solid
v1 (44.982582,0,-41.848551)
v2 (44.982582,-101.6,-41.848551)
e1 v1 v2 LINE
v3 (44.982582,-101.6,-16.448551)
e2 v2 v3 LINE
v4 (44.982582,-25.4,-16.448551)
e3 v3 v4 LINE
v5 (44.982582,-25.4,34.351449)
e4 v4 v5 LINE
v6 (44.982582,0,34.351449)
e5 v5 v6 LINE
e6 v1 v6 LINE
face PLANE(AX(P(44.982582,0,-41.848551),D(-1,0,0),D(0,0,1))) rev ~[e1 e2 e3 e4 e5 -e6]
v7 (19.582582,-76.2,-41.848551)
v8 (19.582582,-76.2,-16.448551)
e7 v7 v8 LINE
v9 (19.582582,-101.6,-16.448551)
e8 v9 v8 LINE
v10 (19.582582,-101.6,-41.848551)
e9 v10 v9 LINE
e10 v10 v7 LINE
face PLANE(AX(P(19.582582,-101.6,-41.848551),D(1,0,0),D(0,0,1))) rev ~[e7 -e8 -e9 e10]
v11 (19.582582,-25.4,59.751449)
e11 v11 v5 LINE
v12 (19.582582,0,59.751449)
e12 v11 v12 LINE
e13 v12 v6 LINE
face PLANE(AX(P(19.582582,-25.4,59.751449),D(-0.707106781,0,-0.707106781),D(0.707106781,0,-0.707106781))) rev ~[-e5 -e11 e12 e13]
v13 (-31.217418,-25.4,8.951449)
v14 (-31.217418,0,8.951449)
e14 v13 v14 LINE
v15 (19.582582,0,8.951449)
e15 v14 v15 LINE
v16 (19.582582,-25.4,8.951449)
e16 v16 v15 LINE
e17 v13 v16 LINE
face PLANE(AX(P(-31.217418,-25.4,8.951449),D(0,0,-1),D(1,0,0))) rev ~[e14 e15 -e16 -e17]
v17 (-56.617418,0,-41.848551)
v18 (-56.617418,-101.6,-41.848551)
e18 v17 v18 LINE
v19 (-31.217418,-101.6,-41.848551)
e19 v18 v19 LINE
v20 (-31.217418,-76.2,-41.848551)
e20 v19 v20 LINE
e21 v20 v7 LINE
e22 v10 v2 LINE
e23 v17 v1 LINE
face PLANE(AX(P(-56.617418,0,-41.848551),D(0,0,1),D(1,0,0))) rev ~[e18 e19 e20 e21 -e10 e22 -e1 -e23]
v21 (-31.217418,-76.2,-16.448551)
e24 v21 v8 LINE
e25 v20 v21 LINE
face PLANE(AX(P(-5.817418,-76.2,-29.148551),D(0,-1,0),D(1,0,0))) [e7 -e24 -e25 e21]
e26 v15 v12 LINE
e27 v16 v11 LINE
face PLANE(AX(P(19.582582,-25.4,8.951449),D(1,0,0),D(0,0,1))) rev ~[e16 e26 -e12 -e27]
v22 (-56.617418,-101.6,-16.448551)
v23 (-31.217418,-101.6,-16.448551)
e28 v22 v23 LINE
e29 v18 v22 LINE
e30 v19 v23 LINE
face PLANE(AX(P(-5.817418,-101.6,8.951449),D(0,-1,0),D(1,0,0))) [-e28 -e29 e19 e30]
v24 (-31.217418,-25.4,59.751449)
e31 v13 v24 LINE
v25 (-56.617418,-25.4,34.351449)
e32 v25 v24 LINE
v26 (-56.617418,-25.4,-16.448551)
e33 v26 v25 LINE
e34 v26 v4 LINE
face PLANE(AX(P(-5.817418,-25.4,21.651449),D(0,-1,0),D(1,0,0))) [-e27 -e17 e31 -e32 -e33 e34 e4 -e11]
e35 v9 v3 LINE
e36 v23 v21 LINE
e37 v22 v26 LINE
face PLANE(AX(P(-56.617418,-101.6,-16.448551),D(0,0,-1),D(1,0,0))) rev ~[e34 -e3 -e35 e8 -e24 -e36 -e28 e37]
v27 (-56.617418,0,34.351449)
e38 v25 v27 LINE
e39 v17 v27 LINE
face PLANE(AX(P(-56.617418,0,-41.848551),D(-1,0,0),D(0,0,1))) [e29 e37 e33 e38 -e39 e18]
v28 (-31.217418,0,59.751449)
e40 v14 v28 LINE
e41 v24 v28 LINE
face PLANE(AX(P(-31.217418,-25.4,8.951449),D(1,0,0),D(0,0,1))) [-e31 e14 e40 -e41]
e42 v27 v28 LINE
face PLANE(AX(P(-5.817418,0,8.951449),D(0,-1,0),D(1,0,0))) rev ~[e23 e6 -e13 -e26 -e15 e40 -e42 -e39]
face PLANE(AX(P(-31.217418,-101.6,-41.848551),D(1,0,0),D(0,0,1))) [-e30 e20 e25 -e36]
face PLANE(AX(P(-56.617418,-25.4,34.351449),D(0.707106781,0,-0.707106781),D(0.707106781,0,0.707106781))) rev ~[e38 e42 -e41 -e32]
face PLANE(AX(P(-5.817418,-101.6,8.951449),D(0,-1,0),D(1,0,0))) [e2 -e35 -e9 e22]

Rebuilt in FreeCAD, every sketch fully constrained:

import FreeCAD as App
import Part
import Sketcher
Q = App.Units.Quantity


def add_polygon(sketch, points):
    """Adds a closed chain of lines whose ends are joined by coincident constraints."""
    first, n = sketch.GeometryCount, len(points)
    for a, b in zip(points, points[1:] + points[:1]):
        sketch.addGeometry(Part.LineSegment(App.Vector(*a, 0), App.Vector(*b, 0)), False)
    for i in range(n):
        sketch.addConstraint(Sketcher.Constraint("Coincident", first + i, 2, first + (i + 1) % n, 1))

doc = App.newDocument("Part")
body = doc.addObject("PartDesign::Body", "Body")

# Sketch on XZ plane
sketch1 = doc.addObject("Sketcher::SketchObject", "Sketch")
body.addObject(sketch1)
sketch1.AttachmentSupport = (doc.XZ_Plane, [""])
sketch1.MapMode = "FlatFace"
add_polygon(sketch1, [(-56.617418, 59.751449), (-56.617418, -41.848551), (44.982582, -41.848551), (44.982582, 59.751449)])  # lines 0-3
sketch1.addConstraint([
    Sketcher.Constraint("Vertical", 0),
    Sketcher.Constraint("Horizontal", 1),
    Sketcher.Constraint("Vertical", 2),
    Sketcher.Constraint("Horizontal", 3),
    Sketcher.Constraint("Equal", 3, 0),
    Sketcher.Constraint("DistanceX", 1, 1, 1, 2, Q("4 in")),
    Sketcher.Constraint("DistanceY", 0, 2, -1, 1, Q("41.848551 mm")),
    Sketcher.Constraint("DistanceX", 0, 2, -1, 1, Q("56.617418 mm")),
])
pad1 = doc.addObject("PartDesign::Pad", "Pad")
body.addObject(pad1)
pad1.Profile = sketch1
pad1.Length = Q("4 in")

# Sketch on XZ plane
sketch2 = doc.addObject("Sketcher::SketchObject", "Sketch001")
body.addObject(sketch2)
sketch2.AttachmentSupport = (doc.XZ_Plane, [""])
sketch2.MapMode = "FlatFace"
sketch2.AttachmentOffset = App.Placement(App.Vector(0, 0, 4 * 25.4), App.Rotation())
add_polygon(sketch2, [(-31.217418, -16.448551), (-31.217418, -41.848551), (19.582582, -41.848551), (19.582582, -16.448551)])  # lines 0-3
sketch2.addConstraint([
    Sketcher.Constraint("Vertical", 0),
    Sketcher.Constraint("Horizontal", 1),
    Sketcher.Constraint("Vertical", 2),
    Sketcher.Constraint("Horizontal", 3),
    Sketcher.Constraint("DistanceX", 1, 1, 1, 2, Q("2 in")),
    Sketcher.Constraint("DistanceY", 0, 2, 0, 1, Q("1 in")),
    Sketcher.Constraint("DistanceY", 0, 2, -1, 1, Q("41.848551 mm")),
    Sketcher.Constraint("DistanceX", -1, 1, 1, 2, Q("19.582582 mm")),
])
pocket1 = doc.addObject("PartDesign::Pocket", "Pocket")
body.addObject(pocket1)
pocket1.Profile = sketch2
pocket1.Length = Q("1 in")

# Sketch on XZ plane
sketch3 = doc.addObject("Sketcher::SketchObject", "Sketch002")
body.addObject(sketch3)
sketch3.AttachmentSupport = (doc.XZ_Plane, [""])
sketch3.MapMode = "FlatFace"
sketch3.AttachmentOffset = App.Placement(App.Vector(0, 0, 4 * 25.4), App.Rotation())
add_polygon(sketch3, [(-56.617418, 59.751449), (-56.617418, -16.448551), (44.982582, -16.448551), (44.982582, 59.751449)])  # lines 0-3
sketch3.addConstraint([
    Sketcher.Constraint("Vertical", 0),
    Sketcher.Constraint("Horizontal", 1),
    Sketcher.Constraint("Vertical", 2),
    Sketcher.Constraint("Horizontal", 3),
    Sketcher.Constraint("DistanceX", 1, 1, 1, 2, Q("4 in")),
    Sketcher.Constraint("DistanceY", 0, 2, 0, 1, Q("3 in")),
    Sketcher.Constraint("DistanceY", 0, 2, -1, 1, Q("16.448551 mm")),
    Sketcher.Constraint("DistanceX", 0, 2, -1, 1, Q("56.617418 mm")),
])
pocket2 = doc.addObject("PartDesign::Pocket", "Pocket001")
body.addObject(pocket2)
pocket2.Profile = sketch3
pocket2.Length = Q("3 in")

# Sketch on XZ plane
sketch4 = doc.addObject("Sketcher::SketchObject", "Sketch003")
body.addObject(sketch4)
sketch4.AttachmentSupport = (doc.XZ_Plane, [""])
sketch4.MapMode = "FlatFace"
sketch4.AttachmentOffset = App.Placement(App.Vector(0, 0, 1 * 25.4), App.Rotation())
add_polygon(sketch4, [(44.982582, 59.751449), (19.582582, 59.751449), (44.982582, 34.351449)])  # lines 0-2
add_polygon(sketch4, [(-31.217418, 59.751449), (-56.617418, 59.751449), (-56.617418, 34.351449)])  # lines 3-5
sketch4.addConstraint([
    Sketcher.Constraint("Horizontal", 0),
    Sketcher.Constraint("Vertical", 2),
    Sketcher.Constraint("Horizontal", 3),
    Sketcher.Constraint("Vertical", 4),
    Sketcher.Constraint("Perpendicular", 1, 5),
    Sketcher.Constraint("Horizontal", 2, 2, 3, 2),
    Sketcher.Constraint("Horizontal", 1, 2, 4, 2),
    Sketcher.Constraint("Equal", 0, 3),
    Sketcher.Constraint("DistanceX", 0, 2, 0, 1, Q("1 in")),
    Sketcher.Constraint("DistanceX", 3, 2, 0, 2, Q("3 in")),
    Sketcher.Constraint("DistanceX", -1, 1, 0, 2, Q("19.582582 mm")),
    Sketcher.Constraint("DistanceY", -1, 1, 0, 2, Q("59.751449 mm")),
])
pocket3 = doc.addObject("PartDesign::Pocket", "Pocket002")
body.addObject(pocket3)
pocket3.Profile = sketch4
pocket3.Length = Q("1 in")

# Sketch on XZ plane
sketch5 = doc.addObject("Sketcher::SketchObject", "Sketch004")
body.addObject(sketch5)
sketch5.AttachmentSupport = (doc.XZ_Plane, [""])
sketch5.MapMode = "FlatFace"
sketch5.AttachmentOffset = App.Placement(App.Vector(0, 0, 1 * 25.4), App.Rotation())
add_polygon(sketch5, [(-31.217418, 59.751449), (-31.217418, 8.951449), (19.582582, 8.951449), (19.582582, 59.751449)])  # lines 0-3
sketch5.addConstraint([
    Sketcher.Constraint("Vertical", 0),
    Sketcher.Constraint("Horizontal", 1),
    Sketcher.Constraint("Vertical", 2),
    Sketcher.Constraint("Horizontal", 3),
    Sketcher.Constraint("Equal", 3, 0),
    Sketcher.Constraint("DistanceX", 1, 1, 1, 2, Q("2 in")),
    Sketcher.Constraint("DistanceY", -1, 1, 0, 2, Q("8.951449 mm")),
    Sketcher.Constraint("DistanceX", -1, 1, 1, 2, Q("19.582582 mm")),
])
pocket4 = doc.addObject("PartDesign::Pocket", "Pocket003")
body.addObject(pocket4)
pocket4.Profile = sketch5
pocket4.Length = Q("1 in")

doc.recompute()
